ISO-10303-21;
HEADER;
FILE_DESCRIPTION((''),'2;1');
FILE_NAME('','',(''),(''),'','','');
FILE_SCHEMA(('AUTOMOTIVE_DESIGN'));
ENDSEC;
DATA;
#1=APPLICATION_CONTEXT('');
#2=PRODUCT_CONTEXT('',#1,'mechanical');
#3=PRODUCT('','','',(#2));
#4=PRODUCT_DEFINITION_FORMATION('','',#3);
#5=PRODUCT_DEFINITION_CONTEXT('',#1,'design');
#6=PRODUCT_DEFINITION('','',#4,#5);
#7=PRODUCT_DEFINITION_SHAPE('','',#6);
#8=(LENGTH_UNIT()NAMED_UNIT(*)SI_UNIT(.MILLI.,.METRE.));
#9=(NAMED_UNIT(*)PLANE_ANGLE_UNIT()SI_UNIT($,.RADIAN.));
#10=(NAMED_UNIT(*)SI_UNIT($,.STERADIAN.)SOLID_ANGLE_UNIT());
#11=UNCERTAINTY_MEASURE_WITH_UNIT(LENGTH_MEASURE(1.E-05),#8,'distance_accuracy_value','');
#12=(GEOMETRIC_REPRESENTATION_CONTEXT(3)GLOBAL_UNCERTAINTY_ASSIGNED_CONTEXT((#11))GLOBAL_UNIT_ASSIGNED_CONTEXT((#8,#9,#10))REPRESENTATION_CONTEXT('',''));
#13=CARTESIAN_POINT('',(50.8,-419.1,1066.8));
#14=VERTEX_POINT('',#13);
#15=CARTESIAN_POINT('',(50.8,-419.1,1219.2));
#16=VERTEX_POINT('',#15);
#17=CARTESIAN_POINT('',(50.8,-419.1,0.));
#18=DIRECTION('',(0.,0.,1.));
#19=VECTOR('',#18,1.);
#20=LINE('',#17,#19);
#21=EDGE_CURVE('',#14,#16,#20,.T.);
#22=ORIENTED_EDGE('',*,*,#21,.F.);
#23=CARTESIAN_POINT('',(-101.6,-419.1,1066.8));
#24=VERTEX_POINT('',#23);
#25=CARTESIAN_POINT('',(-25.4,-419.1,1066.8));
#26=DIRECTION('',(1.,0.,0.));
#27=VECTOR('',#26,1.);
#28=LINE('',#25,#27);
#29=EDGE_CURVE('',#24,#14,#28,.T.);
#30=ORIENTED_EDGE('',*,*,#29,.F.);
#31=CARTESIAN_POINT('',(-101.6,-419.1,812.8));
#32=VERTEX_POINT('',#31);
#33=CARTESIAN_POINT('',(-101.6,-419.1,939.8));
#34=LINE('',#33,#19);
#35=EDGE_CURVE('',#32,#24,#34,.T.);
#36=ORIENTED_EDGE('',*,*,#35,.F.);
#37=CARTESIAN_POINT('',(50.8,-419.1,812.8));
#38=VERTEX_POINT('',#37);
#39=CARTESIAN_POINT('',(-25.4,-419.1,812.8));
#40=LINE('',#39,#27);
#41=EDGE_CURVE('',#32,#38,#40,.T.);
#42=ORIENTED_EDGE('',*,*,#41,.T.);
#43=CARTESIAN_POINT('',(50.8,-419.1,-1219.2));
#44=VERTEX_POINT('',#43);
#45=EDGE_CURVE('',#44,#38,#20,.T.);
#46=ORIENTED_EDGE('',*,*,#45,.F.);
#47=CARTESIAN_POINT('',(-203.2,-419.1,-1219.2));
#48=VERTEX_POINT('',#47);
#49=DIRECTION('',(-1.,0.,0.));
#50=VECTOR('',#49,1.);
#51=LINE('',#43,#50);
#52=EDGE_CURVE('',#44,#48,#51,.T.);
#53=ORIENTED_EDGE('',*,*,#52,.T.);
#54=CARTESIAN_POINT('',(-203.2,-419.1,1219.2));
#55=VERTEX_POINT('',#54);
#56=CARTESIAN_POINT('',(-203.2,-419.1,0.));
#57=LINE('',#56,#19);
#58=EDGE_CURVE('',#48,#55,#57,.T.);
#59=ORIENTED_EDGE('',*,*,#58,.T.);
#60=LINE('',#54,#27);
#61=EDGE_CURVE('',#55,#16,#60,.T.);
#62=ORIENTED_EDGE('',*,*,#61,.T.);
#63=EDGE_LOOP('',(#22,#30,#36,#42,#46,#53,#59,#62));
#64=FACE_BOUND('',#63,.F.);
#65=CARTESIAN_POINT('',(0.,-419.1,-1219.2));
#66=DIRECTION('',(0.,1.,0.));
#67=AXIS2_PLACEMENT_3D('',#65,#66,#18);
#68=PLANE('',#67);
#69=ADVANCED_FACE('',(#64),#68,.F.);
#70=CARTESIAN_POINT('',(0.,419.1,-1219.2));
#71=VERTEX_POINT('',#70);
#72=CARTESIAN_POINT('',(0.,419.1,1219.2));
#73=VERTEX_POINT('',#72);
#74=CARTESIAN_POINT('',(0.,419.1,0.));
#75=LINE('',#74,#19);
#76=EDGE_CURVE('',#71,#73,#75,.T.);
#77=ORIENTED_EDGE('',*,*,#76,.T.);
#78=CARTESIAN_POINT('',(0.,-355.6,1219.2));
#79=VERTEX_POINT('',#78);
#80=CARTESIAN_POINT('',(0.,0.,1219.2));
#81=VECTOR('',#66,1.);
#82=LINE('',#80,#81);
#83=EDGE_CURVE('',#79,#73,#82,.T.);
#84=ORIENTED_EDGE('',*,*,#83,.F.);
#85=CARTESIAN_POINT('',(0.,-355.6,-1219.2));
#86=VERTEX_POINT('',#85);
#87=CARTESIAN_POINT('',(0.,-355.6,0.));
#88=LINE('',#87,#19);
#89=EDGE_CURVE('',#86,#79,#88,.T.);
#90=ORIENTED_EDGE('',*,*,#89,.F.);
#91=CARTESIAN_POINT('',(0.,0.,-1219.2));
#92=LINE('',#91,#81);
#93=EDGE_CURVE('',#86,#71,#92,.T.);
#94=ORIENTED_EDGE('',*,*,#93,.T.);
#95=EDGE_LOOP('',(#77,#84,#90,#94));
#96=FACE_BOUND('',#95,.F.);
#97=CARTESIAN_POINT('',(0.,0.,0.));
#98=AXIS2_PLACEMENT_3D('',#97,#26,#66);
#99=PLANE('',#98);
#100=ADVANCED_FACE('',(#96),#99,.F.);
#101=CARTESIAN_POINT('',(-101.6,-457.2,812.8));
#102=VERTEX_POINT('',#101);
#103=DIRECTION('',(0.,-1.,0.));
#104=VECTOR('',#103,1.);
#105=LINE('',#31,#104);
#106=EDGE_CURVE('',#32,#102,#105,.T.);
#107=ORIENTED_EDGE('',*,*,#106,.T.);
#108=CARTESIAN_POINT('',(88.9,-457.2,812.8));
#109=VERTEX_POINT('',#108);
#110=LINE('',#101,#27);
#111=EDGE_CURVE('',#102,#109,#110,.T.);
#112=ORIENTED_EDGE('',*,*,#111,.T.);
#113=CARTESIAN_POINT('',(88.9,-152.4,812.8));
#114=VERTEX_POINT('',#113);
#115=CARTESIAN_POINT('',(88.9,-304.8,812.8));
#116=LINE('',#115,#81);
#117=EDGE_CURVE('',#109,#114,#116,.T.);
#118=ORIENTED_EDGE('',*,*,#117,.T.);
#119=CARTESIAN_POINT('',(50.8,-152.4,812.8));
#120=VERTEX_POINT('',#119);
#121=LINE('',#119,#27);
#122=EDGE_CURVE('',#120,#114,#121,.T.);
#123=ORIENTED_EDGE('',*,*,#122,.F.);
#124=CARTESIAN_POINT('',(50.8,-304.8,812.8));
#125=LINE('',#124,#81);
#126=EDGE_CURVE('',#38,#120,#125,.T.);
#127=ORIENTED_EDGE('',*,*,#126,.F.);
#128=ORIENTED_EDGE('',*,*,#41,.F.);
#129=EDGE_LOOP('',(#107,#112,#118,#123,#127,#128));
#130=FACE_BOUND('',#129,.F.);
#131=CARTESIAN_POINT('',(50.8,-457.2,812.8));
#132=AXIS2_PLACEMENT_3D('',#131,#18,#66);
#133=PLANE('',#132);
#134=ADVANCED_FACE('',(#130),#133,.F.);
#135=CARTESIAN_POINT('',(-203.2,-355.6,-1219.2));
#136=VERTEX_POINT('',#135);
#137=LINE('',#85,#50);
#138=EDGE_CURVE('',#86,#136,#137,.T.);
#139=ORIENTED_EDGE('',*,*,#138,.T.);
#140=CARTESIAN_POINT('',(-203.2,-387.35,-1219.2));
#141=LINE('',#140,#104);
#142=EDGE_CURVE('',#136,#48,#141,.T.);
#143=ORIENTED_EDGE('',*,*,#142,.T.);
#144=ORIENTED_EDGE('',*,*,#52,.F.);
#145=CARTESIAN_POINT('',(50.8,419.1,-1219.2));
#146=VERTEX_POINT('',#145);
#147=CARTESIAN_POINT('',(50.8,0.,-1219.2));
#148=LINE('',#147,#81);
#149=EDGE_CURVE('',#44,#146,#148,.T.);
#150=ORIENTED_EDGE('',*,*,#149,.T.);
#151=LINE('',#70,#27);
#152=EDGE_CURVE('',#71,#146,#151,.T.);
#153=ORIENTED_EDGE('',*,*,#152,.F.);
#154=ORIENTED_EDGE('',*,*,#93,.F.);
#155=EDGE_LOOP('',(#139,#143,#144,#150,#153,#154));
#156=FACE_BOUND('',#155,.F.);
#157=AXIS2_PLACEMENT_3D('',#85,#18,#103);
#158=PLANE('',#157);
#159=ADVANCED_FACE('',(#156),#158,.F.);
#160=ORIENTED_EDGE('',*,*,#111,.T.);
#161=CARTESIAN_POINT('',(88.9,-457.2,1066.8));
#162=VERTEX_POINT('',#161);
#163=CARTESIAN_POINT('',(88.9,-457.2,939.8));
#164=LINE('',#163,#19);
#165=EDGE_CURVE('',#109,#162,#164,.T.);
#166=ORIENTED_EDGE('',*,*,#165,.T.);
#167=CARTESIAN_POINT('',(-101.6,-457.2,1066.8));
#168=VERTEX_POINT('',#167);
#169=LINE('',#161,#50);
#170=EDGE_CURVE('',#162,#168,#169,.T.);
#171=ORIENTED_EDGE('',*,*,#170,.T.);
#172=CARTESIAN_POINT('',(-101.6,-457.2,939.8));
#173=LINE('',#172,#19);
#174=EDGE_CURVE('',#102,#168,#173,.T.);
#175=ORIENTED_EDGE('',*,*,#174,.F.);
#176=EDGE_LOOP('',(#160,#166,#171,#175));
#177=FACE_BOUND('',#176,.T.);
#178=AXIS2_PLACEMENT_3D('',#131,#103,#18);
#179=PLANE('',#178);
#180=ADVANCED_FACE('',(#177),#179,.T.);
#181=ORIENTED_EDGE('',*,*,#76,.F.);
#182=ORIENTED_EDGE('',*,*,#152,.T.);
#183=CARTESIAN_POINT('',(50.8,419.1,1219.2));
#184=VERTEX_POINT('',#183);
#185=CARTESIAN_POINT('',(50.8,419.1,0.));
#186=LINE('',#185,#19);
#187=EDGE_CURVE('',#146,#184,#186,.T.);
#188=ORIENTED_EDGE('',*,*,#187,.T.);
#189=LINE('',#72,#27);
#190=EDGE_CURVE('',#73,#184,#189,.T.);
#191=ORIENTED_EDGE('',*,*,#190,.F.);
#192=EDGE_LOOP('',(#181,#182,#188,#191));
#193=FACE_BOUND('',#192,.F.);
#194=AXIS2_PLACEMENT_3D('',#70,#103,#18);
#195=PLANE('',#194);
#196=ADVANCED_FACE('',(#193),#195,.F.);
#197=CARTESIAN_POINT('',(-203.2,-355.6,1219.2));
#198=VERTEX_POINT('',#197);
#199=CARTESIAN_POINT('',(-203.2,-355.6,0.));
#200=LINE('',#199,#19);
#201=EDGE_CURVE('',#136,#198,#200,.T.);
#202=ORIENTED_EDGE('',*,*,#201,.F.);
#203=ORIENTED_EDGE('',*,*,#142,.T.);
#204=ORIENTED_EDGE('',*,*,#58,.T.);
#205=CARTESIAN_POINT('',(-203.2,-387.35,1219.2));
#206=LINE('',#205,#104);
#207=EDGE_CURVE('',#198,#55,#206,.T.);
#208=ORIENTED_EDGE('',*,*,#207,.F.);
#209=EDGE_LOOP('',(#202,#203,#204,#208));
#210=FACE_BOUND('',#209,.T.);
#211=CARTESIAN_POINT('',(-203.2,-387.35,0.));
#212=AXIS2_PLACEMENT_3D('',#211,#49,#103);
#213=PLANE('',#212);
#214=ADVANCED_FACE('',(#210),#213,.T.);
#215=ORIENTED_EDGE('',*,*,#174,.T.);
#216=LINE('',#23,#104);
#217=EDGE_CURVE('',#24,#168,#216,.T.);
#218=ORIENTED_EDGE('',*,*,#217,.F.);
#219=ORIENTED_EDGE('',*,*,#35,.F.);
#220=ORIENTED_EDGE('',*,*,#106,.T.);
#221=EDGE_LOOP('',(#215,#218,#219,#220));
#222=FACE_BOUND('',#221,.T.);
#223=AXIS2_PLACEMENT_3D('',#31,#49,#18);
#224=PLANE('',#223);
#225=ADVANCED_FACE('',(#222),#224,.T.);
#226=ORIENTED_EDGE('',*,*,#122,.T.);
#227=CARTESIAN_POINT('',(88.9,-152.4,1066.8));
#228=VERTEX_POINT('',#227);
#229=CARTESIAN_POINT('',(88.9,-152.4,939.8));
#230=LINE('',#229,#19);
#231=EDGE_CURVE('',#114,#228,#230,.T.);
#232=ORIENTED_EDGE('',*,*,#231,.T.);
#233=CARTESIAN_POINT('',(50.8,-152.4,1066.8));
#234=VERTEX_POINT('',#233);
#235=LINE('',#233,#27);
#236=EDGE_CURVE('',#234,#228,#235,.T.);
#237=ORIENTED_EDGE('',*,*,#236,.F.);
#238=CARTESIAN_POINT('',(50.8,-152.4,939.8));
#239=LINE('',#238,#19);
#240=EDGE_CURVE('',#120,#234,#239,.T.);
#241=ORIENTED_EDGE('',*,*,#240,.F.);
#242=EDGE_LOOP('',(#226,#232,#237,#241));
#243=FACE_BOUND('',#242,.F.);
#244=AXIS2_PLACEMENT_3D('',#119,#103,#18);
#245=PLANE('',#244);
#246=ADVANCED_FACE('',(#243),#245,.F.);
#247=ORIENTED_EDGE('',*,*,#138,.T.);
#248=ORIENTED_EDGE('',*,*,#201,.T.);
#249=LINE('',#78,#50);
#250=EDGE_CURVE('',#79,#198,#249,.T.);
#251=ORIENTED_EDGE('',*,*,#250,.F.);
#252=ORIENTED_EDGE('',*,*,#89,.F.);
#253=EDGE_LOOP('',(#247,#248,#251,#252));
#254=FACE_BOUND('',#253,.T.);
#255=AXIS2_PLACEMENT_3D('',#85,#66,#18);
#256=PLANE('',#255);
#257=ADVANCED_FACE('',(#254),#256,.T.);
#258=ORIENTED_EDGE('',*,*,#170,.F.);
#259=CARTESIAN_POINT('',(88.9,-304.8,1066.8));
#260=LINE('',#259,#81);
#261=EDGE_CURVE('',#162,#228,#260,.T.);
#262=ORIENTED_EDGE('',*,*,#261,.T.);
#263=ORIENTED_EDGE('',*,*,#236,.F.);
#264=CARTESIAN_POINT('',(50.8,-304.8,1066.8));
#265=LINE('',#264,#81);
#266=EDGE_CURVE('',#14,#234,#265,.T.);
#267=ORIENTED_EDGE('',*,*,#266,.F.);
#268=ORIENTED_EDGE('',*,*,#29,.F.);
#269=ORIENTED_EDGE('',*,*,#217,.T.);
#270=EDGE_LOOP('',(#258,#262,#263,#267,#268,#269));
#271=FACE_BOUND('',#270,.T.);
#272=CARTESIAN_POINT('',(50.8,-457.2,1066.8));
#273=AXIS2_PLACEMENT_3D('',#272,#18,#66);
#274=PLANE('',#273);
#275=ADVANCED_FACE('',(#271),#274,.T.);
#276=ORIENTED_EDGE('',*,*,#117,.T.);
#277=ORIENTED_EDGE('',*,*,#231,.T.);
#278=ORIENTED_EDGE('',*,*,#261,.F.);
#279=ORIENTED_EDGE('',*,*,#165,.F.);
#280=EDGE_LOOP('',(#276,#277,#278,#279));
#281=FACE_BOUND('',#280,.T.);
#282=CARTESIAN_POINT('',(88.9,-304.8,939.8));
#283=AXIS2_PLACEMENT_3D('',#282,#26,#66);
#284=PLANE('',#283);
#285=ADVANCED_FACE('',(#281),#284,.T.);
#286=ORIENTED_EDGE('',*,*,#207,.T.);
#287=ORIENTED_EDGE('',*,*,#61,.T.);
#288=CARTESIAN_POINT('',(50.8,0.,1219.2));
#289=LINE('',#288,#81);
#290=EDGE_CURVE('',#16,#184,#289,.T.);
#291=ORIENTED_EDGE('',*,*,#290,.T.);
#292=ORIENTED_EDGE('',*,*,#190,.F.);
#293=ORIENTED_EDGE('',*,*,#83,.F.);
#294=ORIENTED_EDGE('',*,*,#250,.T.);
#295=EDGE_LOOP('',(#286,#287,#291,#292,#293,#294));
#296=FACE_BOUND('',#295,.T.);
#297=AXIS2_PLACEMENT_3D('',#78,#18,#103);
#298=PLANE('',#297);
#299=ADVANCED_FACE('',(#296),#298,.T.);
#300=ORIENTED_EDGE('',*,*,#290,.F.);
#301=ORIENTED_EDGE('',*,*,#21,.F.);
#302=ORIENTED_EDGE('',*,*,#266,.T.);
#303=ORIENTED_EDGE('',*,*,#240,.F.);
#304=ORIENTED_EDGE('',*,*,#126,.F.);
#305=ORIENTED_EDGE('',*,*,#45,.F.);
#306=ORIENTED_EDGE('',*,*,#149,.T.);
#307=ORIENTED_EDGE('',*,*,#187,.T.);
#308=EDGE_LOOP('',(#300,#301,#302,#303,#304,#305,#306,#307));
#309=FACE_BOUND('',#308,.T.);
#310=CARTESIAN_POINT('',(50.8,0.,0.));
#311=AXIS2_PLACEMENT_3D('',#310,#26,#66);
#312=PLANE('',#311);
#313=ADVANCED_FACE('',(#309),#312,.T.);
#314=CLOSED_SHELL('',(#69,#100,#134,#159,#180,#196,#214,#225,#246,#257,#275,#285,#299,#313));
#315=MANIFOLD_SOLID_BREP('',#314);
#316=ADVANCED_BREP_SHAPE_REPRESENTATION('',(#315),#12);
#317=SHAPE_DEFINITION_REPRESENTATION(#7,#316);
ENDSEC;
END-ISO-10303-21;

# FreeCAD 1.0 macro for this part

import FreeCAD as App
import Part
import Sketcher
from FreeCAD import Vector
Q = App.Units.Quantity


def add_polygon(sketch, points):
    """Adds a closed chain of lines whose ends are joined by coincident constraints."""
    first, n = sketch.GeometryCount, len(points)
    for a, b in zip(points, points[1:] + points[:1]):
        sketch.addGeometry(Part.LineSegment(App.Vector(*a, 0), App.Vector(*b, 0)), False)
    for i in range(n):
        sketch.addConstraint(Sketcher.Constraint("Coincident", first + i, 2, first + (i + 1) % n, 1))

doc = App.newDocument("Part")
params = doc.addObject("Spreadsheet::Sheet", "Params")
for row, (alias, value) in enumerate([
    ("sketch1_width", "33 in"),
    ("sketch1_height", "96 in"),
    ("pad1_length", "2 in"),
    ("sketch2_height", "96 in"),
    ("sketch2_width", "2.5 in"),
    ("pad2_length", "8 in"),
    ("sketch3_width", "6 in"),
    ("sketch3_height", "10 in"),
    ("pad3_length", "1.5 in"),
    ("sketch4_width", "12 in"),
    ("sketch4_height", "10 in"),
    ("pad4_length", "1.5 in"),
], start=1):
    params.set(f"A{row}", alias)
    params.set(f"B{row}", "=" + value)
    params.setAlias(f"B{row}", alias)

body = doc.addObject("PartDesign::Body", "Body")

# Sketch on YZ plane
sketch1 = doc.addObject("Sketcher::SketchObject", "Sketch")
body.addObject(sketch1)
sketch1.AttachmentSupport = (doc.YZ_Plane, [""])
sketch1.MapMode = "FlatFace"
add_polygon(sketch1, [(-419.1, 1219.2), (-419.1, -1219.2), (419.1, -1219.2), (419.1, 1219.2)])  # lines 0-3
sketch1.addConstraint([
    Sketcher.Constraint("Vertical", 0),
    Sketcher.Constraint("Horizontal", 1),
    Sketcher.Constraint("Vertical", 2),
    Sketcher.Constraint("Horizontal", 3),
    Sketcher.Constraint("Symmetric", 0, 2, 2, 2, -1, 1),
    Sketcher.Constraint("DistanceX", 1, 1, 1, 2, Q("33 in")),
    Sketcher.Constraint("DistanceY", 0, 2, 0, 1, Q("96 in")),
])
sketch1.setExpression("Constraints[9]", "Params.sketch1_width")
sketch1.setExpression("Constraints[10]", "Params.sketch1_height")
pad1 = doc.addObject("PartDesign::Pad", "Pad")
body.addObject(pad1)
pad1.Profile = sketch1
pad1.setExpression("Length", "Params.pad1_length")

# Sketch on YZ plane
sketch2 = doc.addObject("Sketcher::SketchObject", "Sketch001")
body.addObject(sketch2)
sketch2.AttachmentSupport = (doc.YZ_Plane, [""])
sketch2.MapMode = "FlatFace"
add_polygon(sketch2, [(-355.6, 1219.2), (-355.6, -1219.2), (-419.1, -1219.2), (-419.1, 1219.2)])  # lines 0-3
sketch2.addConstraint([
    Sketcher.Constraint("Vertical", 0),
    Sketcher.Constraint("Horizontal", 1),
    Sketcher.Constraint("Vertical", 2),
    Sketcher.Constraint("Horizontal", 3),
    Sketcher.Constraint("DistanceY", 0, 2, 0, 1, Q("96 in")),
    Sketcher.Constraint("DistanceX", 1, 2, 1, 1, Q("2.5 in")),
    Sketcher.Constraint("DistanceX", 0, 2, -1, 1, Q("14 in")),
    Sketcher.Constraint("DistanceY", 0, 2, -1, 1, Q("48 in")),
])
sketch2.setExpression("Constraints[8]", "Params.sketch2_height")
sketch2.setExpression("Constraints[9]", "Params.sketch2_width")
pad2 = doc.addObject("PartDesign::Pad", "Pad001")
body.addObject(pad2)
pad2.Profile = sketch2
pad2.setExpression("Length", "Params.pad2_length")
pad2.Reversed = True

# Sketch on XZ plane
sketch3 = doc.addObject("Sketcher::SketchObject", "Sketch002")
body.addObject(sketch3)
sketch3.AttachmentSupport = (doc.XZ_Plane, [""])
sketch3.MapMode = "FlatFace"
sketch3.AttachmentOffset = App.Placement(Vector(0, 0, 16.5 * 25.4), App.Rotation())
add_polygon(sketch3, [(-101.6, 1066.8), (-101.6, 812.8), (50.8, 812.8), (50.8, 1066.8)])  # lines 0-3
sketch3.addConstraint([
    Sketcher.Constraint("Vertical", 0),
    Sketcher.Constraint("Horizontal", 1),
    Sketcher.Constraint("Vertical", 2),
    Sketcher.Constraint("Horizontal", 3),
    Sketcher.Constraint("DistanceX", 1, 1, 1, 2, Q("6 in")),
    Sketcher.Constraint("DistanceY", 0, 2, 0, 1, Q("10 in")),
    Sketcher.Constraint("DistanceX", 0, 2, -1, 1, Q("4 in")),
    Sketcher.Constraint("DistanceY", -1, 1, 0, 2, Q("32 in")),
])
sketch3.setExpression("Constraints[8]", "Params.sketch3_width")
sketch3.setExpression("Constraints[9]", "Params.sketch3_height")
pad3 = doc.addObject("PartDesign::Pad", "Pad002")
body.addObject(pad3)
pad3.Profile = sketch3
pad3.setExpression("Length", "Params.pad3_length")

# Sketch on YZ plane
sketch4 = doc.addObject("Sketcher::SketchObject", "Sketch003")
body.addObject(sketch4)
sketch4.AttachmentSupport = (doc.YZ_Plane, [""])
sketch4.MapMode = "FlatFace"
sketch4.AttachmentOffset = App.Placement(Vector(0, 0, 2 * 25.4), App.Rotation())
add_polygon(sketch4, [(-457.2, 1066.8), (-457.2, 812.8), (-152.4, 812.8), (-152.4, 1066.8)])  # lines 0-3
sketch4.addConstraint([
    Sketcher.Constraint("Vertical", 0),
    Sketcher.Constraint("Horizontal", 1),
    Sketcher.Constraint("Vertical", 2),
    Sketcher.Constraint("Horizontal", 3),
    Sketcher.Constraint("DistanceX", 1, 1, 1, 2, Q("12 in")),
    Sketcher.Constraint("DistanceY", 0, 2, 0, 1, Q("10 in")),
    Sketcher.Constraint("DistanceX", 0, 2, -1, 1, Q("18 in")),
    Sketcher.Constraint("DistanceY", -1, 1, 0, 2, Q("32 in")),
])
sketch4.setExpression("Constraints[8]", "Params.sketch4_width")
sketch4.setExpression("Constraints[9]", "Params.sketch4_height")
pad4 = doc.addObject("PartDesign::Pad", "Pad003")
body.addObject(pad4)
pad4.Profile = sketch4
pad4.setExpression("Length", "Params.pad4_length")

doc.recompute()
